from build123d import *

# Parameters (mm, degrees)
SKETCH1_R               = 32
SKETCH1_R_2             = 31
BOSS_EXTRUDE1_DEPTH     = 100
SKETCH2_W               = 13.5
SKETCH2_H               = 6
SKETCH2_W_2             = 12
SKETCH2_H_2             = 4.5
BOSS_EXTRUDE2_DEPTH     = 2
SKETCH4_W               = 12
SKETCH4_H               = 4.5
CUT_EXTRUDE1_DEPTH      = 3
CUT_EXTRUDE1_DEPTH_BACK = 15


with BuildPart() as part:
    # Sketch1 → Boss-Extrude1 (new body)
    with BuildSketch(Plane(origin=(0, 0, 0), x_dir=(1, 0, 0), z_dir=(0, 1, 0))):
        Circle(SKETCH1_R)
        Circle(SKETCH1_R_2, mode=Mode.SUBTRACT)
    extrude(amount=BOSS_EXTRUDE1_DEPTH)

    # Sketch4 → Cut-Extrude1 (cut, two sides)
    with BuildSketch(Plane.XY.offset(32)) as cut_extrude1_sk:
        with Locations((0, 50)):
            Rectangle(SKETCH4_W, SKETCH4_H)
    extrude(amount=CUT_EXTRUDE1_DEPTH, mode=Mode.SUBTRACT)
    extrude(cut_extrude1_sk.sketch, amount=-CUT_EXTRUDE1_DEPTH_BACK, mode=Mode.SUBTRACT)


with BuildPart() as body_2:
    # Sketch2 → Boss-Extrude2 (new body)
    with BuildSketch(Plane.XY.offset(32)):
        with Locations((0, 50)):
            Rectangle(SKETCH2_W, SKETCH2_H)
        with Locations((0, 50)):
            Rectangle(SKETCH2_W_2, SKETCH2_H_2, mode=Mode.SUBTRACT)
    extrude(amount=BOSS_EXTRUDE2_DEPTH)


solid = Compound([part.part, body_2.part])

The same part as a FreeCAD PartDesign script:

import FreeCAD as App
import Part
import Sketcher
from FreeCAD import Vector
Q = App.Units.Quantity


def add_polygon(sketch, points):
    """Adds a closed chain of lines whose ends are joined by coincident constraints."""
    first, n = sketch.GeometryCount, len(points)
    for a, b in zip(points, points[1:] + points[:1]):
        sketch.addGeometry(Part.LineSegment(App.Vector(*a, 0), App.Vector(*b, 0)), False)
    for i in range(n):
        sketch.addConstraint(Sketcher.Constraint("Coincident", first + i, 2, first + (i + 1) % n, 1))

doc = App.newDocument("Part")
body = doc.addObject("PartDesign::Body", "Body")

# Sketch on XZ plane
sketch1 = doc.addObject("Sketcher::SketchObject", "Sketch")
body.addObject(sketch1)
sketch1.AttachmentSupport = (doc.XZ_Plane, [""])
sketch1.MapMode = "FlatFace"
sketch1.addGeometry([
    Part.Circle(Vector(0, 0, 0), Vector(0, 0, 1), 32),
    Part.Circle(Vector(0, 0, 0), Vector(0, 0, 1), 31),
], False)
sketch1.addConstraint([
    Sketcher.Constraint("Coincident", 0, 3, -1, 1),
    Sketcher.Constraint("Coincident", 1, 3, -1, 1),
    Sketcher.Constraint("Diameter", 0, Q("64 mm")),
    Sketcher.Constraint("Diameter", 1, Q("62 mm")),
])
pad1 = doc.addObject("PartDesign::Pad", "Pad")
body.addObject(pad1)
pad1.Profile = sketch1
pad1.Length = 100
pad1.Reversed = True

# Sketch on XY plane
sketch2 = doc.addObject("Sketcher::SketchObject", "Sketch001")
body.addObject(sketch2)
sketch2.AttachmentSupport = (doc.XY_Plane, [""])
sketch2.MapMode = "FlatFace"
sketch2.AttachmentOffset = App.Placement(Vector(0, 0, 32), App.Rotation())
add_polygon(sketch2, [(-6, 52.2), (-6, 47.8), (6, 47.8), (6, 52.2)])  # lines 0-3
sketch2.addConstraint([
    Sketcher.Constraint("Vertical", 0),
    Sketcher.Constraint("Horizontal", 1),
    Sketcher.Constraint("Vertical", 2),
    Sketcher.Constraint("Horizontal", 3),
    Sketcher.Constraint("DistanceX", 1, 1, 1, 2, Q("12 mm")),
    Sketcher.Constraint("DistanceY", 0, 2, 0, 1, Q("4.5 mm")),
    Sketcher.Constraint("DistanceX", 0, 2, -1, 1, Q("6 mm")),
    Sketcher.Constraint("DistanceY", -1, 1, 0, 2, Q("47.75 mm")),
])
pocket1 = doc.addObject("PartDesign::Pocket", "Pocket")
body.addObject(pocket1)
pocket1.Profile = sketch2
pocket1.Type = "TwoLengths"
pocket1.Length = 3
pocket1.Length2 = 15
pocket1.Reversed = True
body2 = doc.addObject("PartDesign::Body", "Body001")

# Sketch on XY plane
sketch3 = doc.addObject("Sketcher::SketchObject", "Sketch002")
body2.addObject(sketch3)
sketch3.AttachmentSupport = (doc.getObject("XY_Plane001"), [""])
sketch3.MapMode = "FlatFace"
sketch3.AttachmentOffset = App.Placement(Vector(0, 0, 32), App.Rotation())
add_polygon(sketch3, [(-6.8, 53), (-6.8, 47), (6.8, 47), (6.8, 53)])  # lines 0-3
add_polygon(sketch3, [(6, 47.8), (-6, 47.8), (-6, 52.2), (6, 52.2)])  # lines 4-7
sketch3.addConstraint([
    Sketcher.Constraint("Vertical", 0),
    Sketcher.Constraint("Horizontal", 1),
    Sketcher.Constraint("Vertical", 2),
    Sketcher.Constraint("Horizontal", 3),
    Sketcher.Constraint("Horizontal", 4),
    Sketcher.Constraint("Vertical", 5),
    Sketcher.Constraint("Horizontal", 6),
    Sketcher.Constraint("Vertical", 7),
    Sketcher.Constraint("DistanceX", 4, 2, 4, 1, Q("12 mm")),
    Sketcher.Constraint("DistanceY", 0, 2, 0, 1, Q("6 mm")),
    Sketcher.Constraint("DistanceX", 1, 1, 1, 2, Q("13.5 mm")),
    Sketcher.Constraint("DistanceY", 5, 1, 5, 2, Q("4.5 mm")),
    Sketcher.Constraint("DistanceY", -1, 1, 0, 2, Q("47 mm")),
    Sketcher.Constraint("DistanceX", 4, 2, -1, 1, Q("6 mm")),
    Sketcher.Constraint("DistanceX", 0, 2, -1, 1, Q("6.75 mm")),
    Sketcher.Constraint("DistanceY", -1, 1, 4, 2, Q("47.75 mm")),
])
pad2 = doc.addObject("PartDesign::Pad", "Pad001")
body2.addObject(pad2)
pad2.Profile = sketch3
pad2.Length = 2

doc.recompute()
